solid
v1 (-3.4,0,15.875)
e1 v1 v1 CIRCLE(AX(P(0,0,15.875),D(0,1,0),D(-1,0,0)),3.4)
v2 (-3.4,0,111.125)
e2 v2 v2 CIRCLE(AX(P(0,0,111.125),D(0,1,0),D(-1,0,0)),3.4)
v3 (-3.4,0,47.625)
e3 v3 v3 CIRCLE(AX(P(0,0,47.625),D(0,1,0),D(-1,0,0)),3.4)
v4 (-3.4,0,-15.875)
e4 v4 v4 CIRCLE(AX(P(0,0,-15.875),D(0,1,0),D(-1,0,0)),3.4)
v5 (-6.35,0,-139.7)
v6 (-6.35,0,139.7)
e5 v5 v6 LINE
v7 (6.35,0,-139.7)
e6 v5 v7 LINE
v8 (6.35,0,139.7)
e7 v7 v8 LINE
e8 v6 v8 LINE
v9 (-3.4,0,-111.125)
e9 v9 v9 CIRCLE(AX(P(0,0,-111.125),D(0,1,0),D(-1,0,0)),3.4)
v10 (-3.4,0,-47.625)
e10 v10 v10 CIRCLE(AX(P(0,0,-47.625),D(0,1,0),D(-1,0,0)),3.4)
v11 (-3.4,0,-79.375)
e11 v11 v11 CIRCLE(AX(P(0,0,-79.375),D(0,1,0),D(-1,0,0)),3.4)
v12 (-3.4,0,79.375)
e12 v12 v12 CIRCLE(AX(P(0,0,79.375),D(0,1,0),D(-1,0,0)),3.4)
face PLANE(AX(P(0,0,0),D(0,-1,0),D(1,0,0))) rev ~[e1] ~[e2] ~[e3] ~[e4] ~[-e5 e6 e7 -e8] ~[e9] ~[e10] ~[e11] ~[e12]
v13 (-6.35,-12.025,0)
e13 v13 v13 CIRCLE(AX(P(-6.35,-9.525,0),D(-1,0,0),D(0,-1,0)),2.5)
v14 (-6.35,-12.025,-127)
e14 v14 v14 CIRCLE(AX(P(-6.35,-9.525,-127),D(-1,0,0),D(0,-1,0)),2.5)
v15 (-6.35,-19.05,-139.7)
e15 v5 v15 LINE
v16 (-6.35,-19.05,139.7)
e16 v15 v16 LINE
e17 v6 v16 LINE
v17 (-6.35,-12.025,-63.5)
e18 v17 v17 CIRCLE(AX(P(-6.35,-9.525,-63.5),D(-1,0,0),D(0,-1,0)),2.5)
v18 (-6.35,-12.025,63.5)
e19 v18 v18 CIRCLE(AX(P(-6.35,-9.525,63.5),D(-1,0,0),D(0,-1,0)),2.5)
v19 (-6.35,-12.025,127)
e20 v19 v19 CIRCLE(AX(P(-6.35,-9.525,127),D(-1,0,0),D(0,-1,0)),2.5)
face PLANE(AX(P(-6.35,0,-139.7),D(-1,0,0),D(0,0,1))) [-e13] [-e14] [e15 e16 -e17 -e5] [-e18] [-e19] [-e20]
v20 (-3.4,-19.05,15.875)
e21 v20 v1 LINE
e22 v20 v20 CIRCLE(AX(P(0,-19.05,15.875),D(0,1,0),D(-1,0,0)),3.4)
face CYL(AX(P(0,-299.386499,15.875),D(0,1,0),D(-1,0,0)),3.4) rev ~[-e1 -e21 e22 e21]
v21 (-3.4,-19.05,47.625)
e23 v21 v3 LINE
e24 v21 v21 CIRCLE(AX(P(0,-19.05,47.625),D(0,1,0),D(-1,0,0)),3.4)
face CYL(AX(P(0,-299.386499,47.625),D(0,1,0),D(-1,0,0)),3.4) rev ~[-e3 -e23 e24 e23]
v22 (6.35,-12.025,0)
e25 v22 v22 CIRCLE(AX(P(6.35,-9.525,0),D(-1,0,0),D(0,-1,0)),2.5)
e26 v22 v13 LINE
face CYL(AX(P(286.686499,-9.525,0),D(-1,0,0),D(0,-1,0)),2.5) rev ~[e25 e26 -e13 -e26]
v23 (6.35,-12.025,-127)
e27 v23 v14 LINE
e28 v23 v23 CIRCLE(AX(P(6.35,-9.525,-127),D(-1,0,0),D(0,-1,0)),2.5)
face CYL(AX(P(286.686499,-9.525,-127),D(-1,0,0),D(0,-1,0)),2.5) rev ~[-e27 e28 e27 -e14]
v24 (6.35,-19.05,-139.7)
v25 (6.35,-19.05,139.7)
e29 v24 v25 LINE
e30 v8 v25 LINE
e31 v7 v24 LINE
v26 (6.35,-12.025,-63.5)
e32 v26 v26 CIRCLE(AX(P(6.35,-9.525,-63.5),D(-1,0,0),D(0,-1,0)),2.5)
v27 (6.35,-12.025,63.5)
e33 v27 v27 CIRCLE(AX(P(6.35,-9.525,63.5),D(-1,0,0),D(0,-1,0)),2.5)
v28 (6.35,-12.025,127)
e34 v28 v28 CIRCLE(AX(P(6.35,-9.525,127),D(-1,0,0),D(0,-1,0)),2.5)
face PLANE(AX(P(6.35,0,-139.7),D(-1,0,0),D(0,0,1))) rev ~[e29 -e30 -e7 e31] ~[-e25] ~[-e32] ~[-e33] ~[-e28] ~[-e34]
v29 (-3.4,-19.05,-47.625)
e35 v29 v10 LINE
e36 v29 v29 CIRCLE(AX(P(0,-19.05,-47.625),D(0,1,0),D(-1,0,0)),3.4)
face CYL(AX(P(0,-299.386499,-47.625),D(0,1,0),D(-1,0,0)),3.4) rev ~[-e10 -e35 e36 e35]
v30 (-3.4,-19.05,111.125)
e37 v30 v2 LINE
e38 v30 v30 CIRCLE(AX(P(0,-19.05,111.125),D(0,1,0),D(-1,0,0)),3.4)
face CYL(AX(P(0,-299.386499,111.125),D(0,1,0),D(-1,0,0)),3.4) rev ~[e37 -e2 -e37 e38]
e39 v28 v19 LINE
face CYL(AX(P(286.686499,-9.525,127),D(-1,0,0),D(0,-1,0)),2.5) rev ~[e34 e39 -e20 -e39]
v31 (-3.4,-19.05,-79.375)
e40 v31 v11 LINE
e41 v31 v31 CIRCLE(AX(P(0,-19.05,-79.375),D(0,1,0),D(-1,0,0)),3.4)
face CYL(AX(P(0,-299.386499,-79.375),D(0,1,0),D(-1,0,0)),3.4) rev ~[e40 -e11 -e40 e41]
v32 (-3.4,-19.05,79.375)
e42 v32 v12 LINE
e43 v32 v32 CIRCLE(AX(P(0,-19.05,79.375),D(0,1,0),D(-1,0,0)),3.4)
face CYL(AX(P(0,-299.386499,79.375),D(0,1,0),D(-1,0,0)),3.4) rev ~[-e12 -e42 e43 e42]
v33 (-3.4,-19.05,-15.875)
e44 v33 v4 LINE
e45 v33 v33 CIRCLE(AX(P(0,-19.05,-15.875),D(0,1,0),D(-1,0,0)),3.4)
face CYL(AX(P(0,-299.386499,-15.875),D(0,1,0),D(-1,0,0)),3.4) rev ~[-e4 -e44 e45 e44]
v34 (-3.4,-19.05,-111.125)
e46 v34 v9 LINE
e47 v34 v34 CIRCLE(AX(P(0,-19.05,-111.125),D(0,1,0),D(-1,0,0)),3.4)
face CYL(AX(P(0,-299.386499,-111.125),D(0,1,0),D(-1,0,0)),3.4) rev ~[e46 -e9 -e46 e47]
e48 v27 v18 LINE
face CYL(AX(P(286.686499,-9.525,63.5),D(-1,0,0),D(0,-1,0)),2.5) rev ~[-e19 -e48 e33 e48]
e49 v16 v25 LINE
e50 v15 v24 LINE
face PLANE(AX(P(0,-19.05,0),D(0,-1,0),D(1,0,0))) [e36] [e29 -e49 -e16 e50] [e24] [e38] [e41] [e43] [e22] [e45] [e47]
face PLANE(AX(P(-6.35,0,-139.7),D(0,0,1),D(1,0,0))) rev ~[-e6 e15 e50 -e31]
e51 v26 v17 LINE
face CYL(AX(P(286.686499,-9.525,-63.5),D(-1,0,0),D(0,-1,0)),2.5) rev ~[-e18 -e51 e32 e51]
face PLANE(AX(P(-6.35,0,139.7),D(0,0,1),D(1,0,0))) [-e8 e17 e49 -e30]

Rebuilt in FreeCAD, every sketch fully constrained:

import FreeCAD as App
import Part
import Sketcher

V = App.Vector
Q = App.Units.Quantity


def add_polygon(sketch, points):
    """Adds a closed chain of lines whose ends are joined by coincident constraints."""
    first, n = sketch.GeometryCount, len(points)
    for a, b in zip(points, points[1:] + points[:1]):
        sketch.addGeometry(Part.LineSegment(App.Vector(*a, 0), App.Vector(*b, 0)), False)
    for i in range(n):
        sketch.addConstraint(Sketcher.Constraint("Coincident", first + i, 2, first + (i + 1) % n, 1))

doc = App.newDocument("Part")
body = doc.addObject("PartDesign::Body", "Body")

sketch1 = body.newObject("Sketcher::SketchObject", "Sketch")
sketch1.AttachmentSupport = (doc.getObject("XZ_Plane"), [""])
sketch1.MapMode = "FlatFace"
add_polygon(sketch1, [(-6.35, 139.7), (-6.35, -139.7), (6.35, -139.7), (6.35, 139.7)])
sketch1.addConstraint([
    Sketcher.Constraint("Vertical", 0),
    Sketcher.Constraint("Horizontal", 1),
    Sketcher.Constraint("Vertical", 2),
    Sketcher.Constraint("Horizontal", 3),
    Sketcher.Constraint("Symmetric", 0, 2, 2, 2, -1, 1),
    Sketcher.Constraint("DistanceY", 0, 2, 0, 1, Q("11 in")),
    Sketcher.Constraint("DistanceX", 1, 1, 1, 2, Q("0.5 in")),
])
pad1 = body.newObject("PartDesign::Pad", "Pad")
pad1.Profile = sketch1
pad1.Length = Q("0.75 in")

sketch2 = body.newObject("Sketcher::SketchObject", "Sketch001")
sketch2.AttachmentSupport = (doc.getObject("YZ_Plane"), [""])
sketch2.MapMode = "FlatFace"
sketch2.AttachmentOffset = App.Placement(V(0, 0, 0.25 * 25.4), App.Rotation())
sketch2.addGeometry([
    Part.Circle(V(-9.525, 127, 0), V(0, 0, 1), 2.5),
    Part.Circle(V(-9.525, 63.5, 0), V(0, 0, 1), 2.5),
    Part.Circle(V(-9.525, 0, 0), V(0, 0, 1), 2.5),
    Part.Circle(V(-9.525, -63.5, 0), V(0, 0, 1), 2.5),
    Part.Circle(V(-9.525, -127, 0), V(0, 0, 1), 2.5),
], False)
sketch2.addConstraint([
    Sketcher.Constraint("Equal", 0, 1),
    Sketcher.Constraint("Equal", 1, 2),
    Sketcher.Constraint("Equal", 2, 3),
    Sketcher.Constraint("Equal", 3, 4),
    Sketcher.Constraint("Symmetric", 1, 3, 3, 3, -1),
    Sketcher.Constraint("Symmetric", 0, 3, 4, 3, -1),
    Sketcher.Constraint("PointOnObject", 2, 3, -1),
    Sketcher.Constraint("Vertical", 0, 3, 1, 3),
    Sketcher.Constraint("Vertical", 1, 3, 2, 3),
    Sketcher.Constraint("DistanceY", -1, 1, 0, 3, Q("5 in")),
    Sketcher.Constraint("DistanceY", 3, 3, 1, 3, Q("5 in")),
    Sketcher.Constraint("Diameter", 0, Q("5 mm")),
    Sketcher.Constraint("DistanceX", 0, 3, -1, 1, Q("0.375 in")),
])
doc.recompute()
hole = body.newObject("PartDesign::Hole", "Hole")
hole.Profile = sketch2
hole.ThreadType = "None"
hole.Diameter = 5
hole.DepthType = "ThroughAll"

sketch3 = body.newObject("Sketcher::SketchObject", "Sketch002")
sketch3.AttachmentSupport = (doc.getObject("XZ_Plane"), [""])
sketch3.MapMode = "FlatFace"
sketch3.AttachmentOffset = App.Placement(V(0, 0, 0.75 * 25.4), App.Rotation())
sketch3.addGeometry([
    Part.Circle(V(0, 111.125, 0), V(0, 0, 1), 3.4),
    Part.Circle(V(0, 79.375, 0), V(0, 0, 1), 3.4),
    Part.Circle(V(0, 47.625, 0), V(0, 0, 1), 3.4),
    Part.Circle(V(0, 15.875, 0), V(0, 0, 1), 3.4),
    Part.Circle(V(0, -15.875, 0), V(0, 0, 1), 3.4),
    Part.Circle(V(0, -47.625, 0), V(0, 0, 1), 3.4),
    Part.Circle(V(0, -79.375, 0), V(0, 0, 1), 3.4),
    Part.Circle(V(0, -111.125, 0), V(0, 0, 1), 3.4),
], False)
sketch3.addConstraint([
    Sketcher.Constraint("Equal", 0, 1),
    Sketcher.Constraint("Equal", 1, 2),
    Sketcher.Constraint("Equal", 2, 3),
    Sketcher.Constraint("Equal", 3, 4),
    Sketcher.Constraint("Equal", 4, 5),
    Sketcher.Constraint("Equal", 5, 6),
    Sketcher.Constraint("Equal", 6, 7),
    Sketcher.Constraint("Symmetric", 3, 3, 4, 3, -1, 1),
    Sketcher.Constraint("Symmetric", 2, 3, 5, 3, -1, 1),
    Sketcher.Constraint("Symmetric", 1, 3, 6, 3, -1, 1),
    Sketcher.Constraint("Symmetric", 0, 3, 7, 3, -1, 1),
    Sketcher.Constraint("PointOnObject", 0, 3, -2),
    Sketcher.Constraint("PointOnObject", 1, 3, -2),
    Sketcher.Constraint("PointOnObject", 2, 3, -2),
    Sketcher.Constraint("PointOnObject", 3, 3, -2),
    Sketcher.Constraint("DistanceY", 4, 3, 0, 3, Q("5 in")),
    Sketcher.Constraint("DistanceY", 5, 3, 1, 3, Q("5 in")),
    Sketcher.Constraint("DistanceY", 2, 3, 0, 3, Q("2.5 in")),
    Sketcher.Constraint("Diameter", 0, Q("6.8 mm")),
    Sketcher.Constraint("DistanceY", 1, 3, 0, 3, Q("1.25 in")),
])
doc.recompute()
hole2 = body.newObject("PartDesign::Hole", "Hole001")
hole2.Profile = sketch3
hole2.ThreadType = "None"
hole2.Diameter = 6.8
hole2.DepthType = "ThroughAll"

doc.recompute()
